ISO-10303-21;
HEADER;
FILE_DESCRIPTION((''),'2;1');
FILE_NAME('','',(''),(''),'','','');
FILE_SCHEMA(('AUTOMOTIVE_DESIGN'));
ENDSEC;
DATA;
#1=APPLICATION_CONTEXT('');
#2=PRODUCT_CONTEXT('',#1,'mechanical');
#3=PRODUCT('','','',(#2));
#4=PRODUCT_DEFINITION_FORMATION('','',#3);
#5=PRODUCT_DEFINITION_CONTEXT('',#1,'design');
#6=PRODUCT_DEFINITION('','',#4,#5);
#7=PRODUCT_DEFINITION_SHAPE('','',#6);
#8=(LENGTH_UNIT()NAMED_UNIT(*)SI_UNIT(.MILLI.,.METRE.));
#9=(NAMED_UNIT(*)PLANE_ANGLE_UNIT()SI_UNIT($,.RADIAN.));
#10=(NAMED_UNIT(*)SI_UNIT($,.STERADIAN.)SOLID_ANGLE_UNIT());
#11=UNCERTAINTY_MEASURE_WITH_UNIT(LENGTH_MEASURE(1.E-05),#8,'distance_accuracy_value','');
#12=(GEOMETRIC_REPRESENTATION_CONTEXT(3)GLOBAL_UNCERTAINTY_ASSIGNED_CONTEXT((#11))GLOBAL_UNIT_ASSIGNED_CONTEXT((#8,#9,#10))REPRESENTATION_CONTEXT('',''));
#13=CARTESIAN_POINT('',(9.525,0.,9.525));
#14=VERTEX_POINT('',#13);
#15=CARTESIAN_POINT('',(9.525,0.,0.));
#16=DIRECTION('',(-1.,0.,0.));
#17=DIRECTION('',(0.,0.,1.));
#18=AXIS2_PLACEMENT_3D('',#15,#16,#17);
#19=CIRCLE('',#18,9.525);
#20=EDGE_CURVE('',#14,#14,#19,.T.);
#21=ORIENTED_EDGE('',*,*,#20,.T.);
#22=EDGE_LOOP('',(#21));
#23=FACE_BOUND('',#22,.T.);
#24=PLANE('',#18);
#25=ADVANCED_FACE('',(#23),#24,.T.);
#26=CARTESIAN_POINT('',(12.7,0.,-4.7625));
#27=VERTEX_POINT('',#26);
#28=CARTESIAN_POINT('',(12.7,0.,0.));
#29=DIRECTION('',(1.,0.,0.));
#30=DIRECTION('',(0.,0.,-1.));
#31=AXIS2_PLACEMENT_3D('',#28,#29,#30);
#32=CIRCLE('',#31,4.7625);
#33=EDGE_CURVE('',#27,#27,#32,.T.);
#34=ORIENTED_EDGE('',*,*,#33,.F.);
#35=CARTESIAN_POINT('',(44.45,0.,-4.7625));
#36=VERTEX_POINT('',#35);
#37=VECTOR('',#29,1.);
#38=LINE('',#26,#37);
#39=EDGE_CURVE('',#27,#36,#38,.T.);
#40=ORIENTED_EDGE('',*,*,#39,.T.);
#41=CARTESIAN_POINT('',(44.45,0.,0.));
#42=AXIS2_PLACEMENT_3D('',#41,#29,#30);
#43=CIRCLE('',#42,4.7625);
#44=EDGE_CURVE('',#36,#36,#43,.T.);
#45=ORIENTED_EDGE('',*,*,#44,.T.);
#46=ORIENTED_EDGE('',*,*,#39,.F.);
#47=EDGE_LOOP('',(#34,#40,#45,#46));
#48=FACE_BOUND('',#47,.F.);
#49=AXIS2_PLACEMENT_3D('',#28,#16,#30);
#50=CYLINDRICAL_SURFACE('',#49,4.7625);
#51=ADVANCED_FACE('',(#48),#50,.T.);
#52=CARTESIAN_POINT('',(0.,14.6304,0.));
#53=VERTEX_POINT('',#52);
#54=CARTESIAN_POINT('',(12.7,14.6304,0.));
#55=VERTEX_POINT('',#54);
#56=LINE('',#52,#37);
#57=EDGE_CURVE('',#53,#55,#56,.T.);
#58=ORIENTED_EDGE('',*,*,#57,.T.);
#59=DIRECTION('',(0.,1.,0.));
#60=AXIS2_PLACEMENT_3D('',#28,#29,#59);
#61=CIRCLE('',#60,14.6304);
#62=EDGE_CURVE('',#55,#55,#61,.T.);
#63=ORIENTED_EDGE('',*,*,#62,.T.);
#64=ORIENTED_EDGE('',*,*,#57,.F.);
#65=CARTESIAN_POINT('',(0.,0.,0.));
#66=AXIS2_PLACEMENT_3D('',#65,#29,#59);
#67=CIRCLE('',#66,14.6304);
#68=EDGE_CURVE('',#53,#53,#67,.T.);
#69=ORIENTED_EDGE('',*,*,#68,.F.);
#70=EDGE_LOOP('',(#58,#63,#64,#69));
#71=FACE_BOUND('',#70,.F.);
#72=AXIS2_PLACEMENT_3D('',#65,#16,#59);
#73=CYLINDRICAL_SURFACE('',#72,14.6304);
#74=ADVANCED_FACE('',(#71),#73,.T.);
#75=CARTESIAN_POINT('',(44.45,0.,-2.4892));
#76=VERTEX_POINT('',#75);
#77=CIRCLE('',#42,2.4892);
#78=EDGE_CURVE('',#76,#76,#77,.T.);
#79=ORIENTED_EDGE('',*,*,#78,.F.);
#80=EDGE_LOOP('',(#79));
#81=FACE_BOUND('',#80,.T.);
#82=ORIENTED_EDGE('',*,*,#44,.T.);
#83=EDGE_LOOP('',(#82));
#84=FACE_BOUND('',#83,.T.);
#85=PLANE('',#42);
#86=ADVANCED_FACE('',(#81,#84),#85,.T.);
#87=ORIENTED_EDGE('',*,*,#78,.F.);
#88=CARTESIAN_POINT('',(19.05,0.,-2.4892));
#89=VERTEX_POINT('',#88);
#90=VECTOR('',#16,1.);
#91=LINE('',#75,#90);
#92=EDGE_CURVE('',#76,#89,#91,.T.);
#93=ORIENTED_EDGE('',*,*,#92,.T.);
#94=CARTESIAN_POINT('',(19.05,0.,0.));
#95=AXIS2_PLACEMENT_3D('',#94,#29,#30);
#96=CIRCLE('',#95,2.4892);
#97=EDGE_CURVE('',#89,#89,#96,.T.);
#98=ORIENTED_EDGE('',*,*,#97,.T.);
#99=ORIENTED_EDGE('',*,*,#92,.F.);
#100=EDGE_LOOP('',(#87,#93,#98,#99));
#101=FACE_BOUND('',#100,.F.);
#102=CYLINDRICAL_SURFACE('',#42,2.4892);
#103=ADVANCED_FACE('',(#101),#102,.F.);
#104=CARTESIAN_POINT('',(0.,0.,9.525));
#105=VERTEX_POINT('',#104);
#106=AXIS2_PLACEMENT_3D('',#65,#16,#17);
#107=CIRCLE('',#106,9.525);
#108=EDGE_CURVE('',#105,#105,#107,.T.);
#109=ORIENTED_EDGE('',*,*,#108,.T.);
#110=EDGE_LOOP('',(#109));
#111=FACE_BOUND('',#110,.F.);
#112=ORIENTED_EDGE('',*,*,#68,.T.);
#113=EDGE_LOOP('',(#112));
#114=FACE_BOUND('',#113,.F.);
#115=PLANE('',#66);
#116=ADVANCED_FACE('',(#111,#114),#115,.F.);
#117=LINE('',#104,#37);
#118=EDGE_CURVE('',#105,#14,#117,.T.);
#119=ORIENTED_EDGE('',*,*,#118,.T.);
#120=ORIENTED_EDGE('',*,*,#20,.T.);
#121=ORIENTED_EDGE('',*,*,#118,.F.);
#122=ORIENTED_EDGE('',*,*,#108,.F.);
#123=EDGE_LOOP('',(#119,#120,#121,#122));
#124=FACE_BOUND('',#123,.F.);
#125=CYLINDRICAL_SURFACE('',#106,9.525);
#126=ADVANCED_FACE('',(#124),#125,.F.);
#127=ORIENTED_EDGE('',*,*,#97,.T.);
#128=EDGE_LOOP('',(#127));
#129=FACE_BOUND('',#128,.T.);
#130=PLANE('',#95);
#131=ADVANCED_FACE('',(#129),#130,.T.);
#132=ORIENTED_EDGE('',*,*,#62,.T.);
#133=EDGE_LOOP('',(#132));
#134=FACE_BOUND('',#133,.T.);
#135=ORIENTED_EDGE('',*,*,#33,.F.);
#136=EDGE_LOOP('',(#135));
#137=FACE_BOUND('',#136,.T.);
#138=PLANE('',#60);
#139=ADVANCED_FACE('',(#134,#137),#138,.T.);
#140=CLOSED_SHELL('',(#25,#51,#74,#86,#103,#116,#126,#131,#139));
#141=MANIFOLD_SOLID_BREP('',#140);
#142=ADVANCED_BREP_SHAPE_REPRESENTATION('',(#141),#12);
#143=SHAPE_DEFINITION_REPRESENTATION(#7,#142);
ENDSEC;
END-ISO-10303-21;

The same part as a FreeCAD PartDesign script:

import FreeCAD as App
import Part
import Sketcher
Q = App.Units.Quantity

doc = App.newDocument("Part")
params = doc.addObject("Spreadsheet::Sheet", "Params")
for row, (alias, value) in enumerate([
    ("sketch1_diameter", "1.152 in"),
    ("pad1_length", "0.5 in"),
    ("sketch2_diameter", "0.375 in"),
    ("pad2_length", "1.25 in"),
    ("sketch3_diameter", "0.196 in"),
    ("pocket1_length", "1 in"),
    ("sketch4_diameter", "0.75 in"),
    ("pocket2_length", "0.375 in"),
], start=1):
    params.set(f"A{row}", alias)
    params.set(f"B{row}", "=" + value)
    params.setAlias(f"B{row}", alias)

body = doc.addObject("PartDesign::Body", "Body")

# Sketch on YZ plane
sketch1 = body.newObject("Sketcher::SketchObject", "Sketch")
sketch1.AttachmentSupport = (doc.getObject("YZ_Plane"), [""])
sketch1.MapMode = "FlatFace"
sketch1.addGeometry(Part.Circle(App.Vector(0, 0, 0), App.Vector(0, 0, 1), 14.6304), False)
sketch1.addConstraint([
    Sketcher.Constraint("Coincident", 0, 3, -1, 1),
    Sketcher.Constraint("Diameter", 0, Q("1.152 in")),
])
sketch1.setExpression("Constraints[1]", "Params.sketch1_diameter")
pad1 = body.newObject("PartDesign::Pad", "Pad")
pad1.Profile = sketch1
pad1.setExpression("Length", "Params.pad1_length")

# Sketch on YZ plane
sketch2 = body.newObject("Sketcher::SketchObject", "Sketch001")
sketch2.AttachmentSupport = (doc.getObject("YZ_Plane"), [""])
sketch2.MapMode = "FlatFace"
sketch2.AttachmentOffset = App.Placement(App.Vector(0, 0, 0.5 * 25.4), App.Rotation())
sketch2.addGeometry(Part.Circle(App.Vector(0, 0, 0), App.Vector(0, 0, 1), 4.7625), False)
sketch2.addConstraint([
    Sketcher.Constraint("Coincident", 0, 3, -1, 1),
    Sketcher.Constraint("Diameter", 0, Q("0.375 in")),
])
sketch2.setExpression("Constraints[1]", "Params.sketch2_diameter")
pad2 = body.newObject("PartDesign::Pad", "Pad001")
pad2.Profile = sketch2
pad2.setExpression("Length", "Params.pad2_length")

# Sketch on YZ plane
sketch3 = body.newObject("Sketcher::SketchObject", "Sketch002")
sketch3.AttachmentSupport = (doc.getObject("YZ_Plane"), [""])
sketch3.MapMode = "FlatFace"
sketch3.AttachmentOffset = App.Placement(App.Vector(0, 0, 1.75 * 25.4), App.Rotation())
sketch3.addGeometry(Part.Circle(App.Vector(0, 0, 0), App.Vector(0, 0, 1), 2.4892), False)
sketch3.addConstraint([
    Sketcher.Constraint("Coincident", 0, 3, -1, 1),
    Sketcher.Constraint("Diameter", 0, Q("0.196 in")),
])
sketch3.setExpression("Constraints[1]", "Params.sketch3_diameter")
pocket1 = body.newObject("PartDesign::Pocket", "Pocket")
pocket1.Profile = sketch3
pocket1.setExpression("Length", "Params.pocket1_length")

# Sketch on YZ plane
sketch4 = body.newObject("Sketcher::SketchObject", "Sketch003")
sketch4.AttachmentSupport = (doc.getObject("YZ_Plane"), [""])
sketch4.MapMode = "FlatFace"
sketch4.addGeometry(Part.Circle(App.Vector(0, 0, 0), App.Vector(0, 0, 1), 9.525), False)
sketch4.addConstraint([
    Sketcher.Constraint("Coincident", 0, 3, -1, 1),
    Sketcher.Constraint("Diameter", 0, Q("0.75 in")),
])
sketch4.setExpression("Constraints[1]", "Params.sketch4_diameter")
pocket2 = body.newObject("PartDesign::Pocket", "Pocket001")
pocket2.Profile = sketch4
pocket2.setExpression("Length", "Params.pocket2_length")
pocket2.Reversed = True

doc.recompute()
